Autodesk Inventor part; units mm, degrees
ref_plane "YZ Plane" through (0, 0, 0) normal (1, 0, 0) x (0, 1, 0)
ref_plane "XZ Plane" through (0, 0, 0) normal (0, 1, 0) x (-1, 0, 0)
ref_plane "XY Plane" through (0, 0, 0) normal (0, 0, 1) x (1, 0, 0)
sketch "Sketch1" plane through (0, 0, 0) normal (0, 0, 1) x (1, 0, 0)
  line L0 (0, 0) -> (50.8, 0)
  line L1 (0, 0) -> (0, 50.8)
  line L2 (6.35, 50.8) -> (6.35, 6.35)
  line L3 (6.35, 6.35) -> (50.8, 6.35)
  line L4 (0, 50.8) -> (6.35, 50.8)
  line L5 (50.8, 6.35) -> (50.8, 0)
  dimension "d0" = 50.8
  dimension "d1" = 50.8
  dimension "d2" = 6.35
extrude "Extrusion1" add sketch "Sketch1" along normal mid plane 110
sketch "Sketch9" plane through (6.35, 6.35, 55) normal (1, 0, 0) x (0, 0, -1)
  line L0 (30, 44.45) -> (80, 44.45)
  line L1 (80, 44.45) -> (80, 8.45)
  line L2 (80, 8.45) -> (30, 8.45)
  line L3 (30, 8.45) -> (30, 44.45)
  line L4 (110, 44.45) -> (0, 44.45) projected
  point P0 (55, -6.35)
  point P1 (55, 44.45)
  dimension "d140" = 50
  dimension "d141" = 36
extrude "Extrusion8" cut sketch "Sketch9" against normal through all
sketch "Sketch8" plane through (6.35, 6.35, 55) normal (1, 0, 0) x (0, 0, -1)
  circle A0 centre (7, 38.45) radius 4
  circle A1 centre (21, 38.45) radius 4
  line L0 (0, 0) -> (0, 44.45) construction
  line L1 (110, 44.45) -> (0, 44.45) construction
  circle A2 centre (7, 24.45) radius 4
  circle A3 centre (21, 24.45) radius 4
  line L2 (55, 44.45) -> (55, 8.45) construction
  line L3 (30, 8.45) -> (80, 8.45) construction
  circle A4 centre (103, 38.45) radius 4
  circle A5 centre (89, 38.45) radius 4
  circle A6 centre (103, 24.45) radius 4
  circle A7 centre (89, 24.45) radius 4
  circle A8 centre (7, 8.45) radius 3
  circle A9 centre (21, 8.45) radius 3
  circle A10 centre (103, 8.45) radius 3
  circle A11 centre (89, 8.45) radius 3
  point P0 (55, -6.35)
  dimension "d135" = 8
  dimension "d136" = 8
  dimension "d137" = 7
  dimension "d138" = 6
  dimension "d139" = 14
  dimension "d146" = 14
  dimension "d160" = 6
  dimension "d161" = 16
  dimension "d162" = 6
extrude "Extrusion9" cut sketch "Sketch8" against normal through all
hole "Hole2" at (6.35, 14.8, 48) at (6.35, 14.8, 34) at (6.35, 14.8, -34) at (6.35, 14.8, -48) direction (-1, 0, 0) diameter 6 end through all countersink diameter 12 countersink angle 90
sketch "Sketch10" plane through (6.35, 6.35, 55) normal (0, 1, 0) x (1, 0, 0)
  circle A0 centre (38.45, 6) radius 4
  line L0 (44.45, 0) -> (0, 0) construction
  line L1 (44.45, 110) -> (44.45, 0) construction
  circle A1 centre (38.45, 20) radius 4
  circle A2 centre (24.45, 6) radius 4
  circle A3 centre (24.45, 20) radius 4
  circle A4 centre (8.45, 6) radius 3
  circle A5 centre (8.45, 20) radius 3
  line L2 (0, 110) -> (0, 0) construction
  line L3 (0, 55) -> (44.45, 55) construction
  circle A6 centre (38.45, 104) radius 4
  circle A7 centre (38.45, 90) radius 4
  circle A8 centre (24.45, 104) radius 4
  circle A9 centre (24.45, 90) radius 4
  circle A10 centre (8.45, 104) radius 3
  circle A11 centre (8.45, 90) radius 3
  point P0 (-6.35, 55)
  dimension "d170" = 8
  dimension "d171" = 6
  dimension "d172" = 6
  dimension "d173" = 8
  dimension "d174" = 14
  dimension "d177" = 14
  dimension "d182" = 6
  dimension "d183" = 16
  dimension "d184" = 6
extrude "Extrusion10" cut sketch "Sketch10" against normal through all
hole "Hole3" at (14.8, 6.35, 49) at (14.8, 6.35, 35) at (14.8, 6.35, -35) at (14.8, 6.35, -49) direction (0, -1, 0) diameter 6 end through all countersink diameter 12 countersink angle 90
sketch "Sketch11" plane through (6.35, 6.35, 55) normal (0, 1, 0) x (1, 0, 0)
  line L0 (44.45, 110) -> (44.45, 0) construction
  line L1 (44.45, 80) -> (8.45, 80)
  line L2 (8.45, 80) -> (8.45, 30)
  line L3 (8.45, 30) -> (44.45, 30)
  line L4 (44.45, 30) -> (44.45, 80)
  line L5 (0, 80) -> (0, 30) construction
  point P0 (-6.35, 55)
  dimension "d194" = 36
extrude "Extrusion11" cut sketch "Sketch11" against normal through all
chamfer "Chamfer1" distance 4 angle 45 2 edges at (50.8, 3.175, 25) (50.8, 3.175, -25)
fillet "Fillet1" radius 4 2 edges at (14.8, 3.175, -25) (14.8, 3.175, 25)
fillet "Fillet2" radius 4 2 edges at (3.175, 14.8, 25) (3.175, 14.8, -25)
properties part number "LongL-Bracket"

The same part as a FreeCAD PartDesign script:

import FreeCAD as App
import Part
import Sketcher


def edges_at(feature, points):
    """Names of the edges that pass closest to the given points."""
    edges = feature.Shape.Edges
    near = lambda p: min(range(len(edges)), key=lambda i: edges[i].distToShape(Part.Vertex(*p))[0])
    return sorted({f"Edge{near(p) + 1}" for p in points})


def add_polygon(sketch, points):
    """Adds a closed chain of lines whose ends are joined by coincident constraints."""
    first, n = sketch.GeometryCount, len(points)
    for a, b in zip(points, points[1:] + points[:1]):
        sketch.addGeometry(Part.LineSegment(App.Vector(*a, 0), App.Vector(*b, 0)), False)
    for i in range(n):
        sketch.addConstraint(Sketcher.Constraint("Coincident", first + i, 2, first + (i + 1) % n, 1))

doc = App.newDocument("Part")
body = doc.addObject("PartDesign::Body", "Body")

# Sketch on XY plane
sketch1 = body.newObject("Sketcher::SketchObject", "Sketch")
sketch1.AttachmentSupport = (doc.getObject("XY_Plane"), [""])
sketch1.MapMode = "FlatFace"
add_polygon(sketch1, [(0, 50.8), (0, 0), (50.8, 0), (50.8, 6.35), (6.35, 6.35), (6.35, 50.8)])  # lines 0-5
sketch1.addConstraint(Sketcher.Constraint("Vertical", 0))
sketch1.addConstraint(Sketcher.Constraint("Horizontal", 1))
sketch1.addConstraint(Sketcher.Constraint("Vertical", 2))
sketch1.addConstraint(Sketcher.Constraint("Horizontal", 3))
sketch1.addConstraint(Sketcher.Constraint("Vertical", 4))
sketch1.addConstraint(Sketcher.Constraint("Horizontal", 5))
sketch1.addConstraint(Sketcher.Constraint("Coincident", 0, 2, -1, 1))
sketch1.addConstraint(Sketcher.Constraint("Equal", 1, 0))
sketch1.addConstraint(Sketcher.Constraint("Equal", 5, 2))
sketch1.addConstraint(Sketcher.Constraint("DistanceX", 1, 1, 1, 2, 50.8))
sketch1.addConstraint(Sketcher.Constraint("DistanceX", 5, 2, 5, 1, 6.35))
pad1 = body.newObject("PartDesign::Pad", "Pad")
pad1.Profile = sketch1
pad1.Length = 110
pad1.Midplane = True

# Sketch on YZ plane
sketch2 = body.newObject("Sketcher::SketchObject", "Sketch001")
sketch2.AttachmentSupport = (doc.getObject("YZ_Plane"), [""])
sketch2.MapMode = "FlatFace"
sketch2.AttachmentOffset = App.Placement(App.Vector(0, 0, 6.35), App.Rotation())
add_polygon(sketch2, [(50.8, -25), (50.8, 25), (14.8, 25), (14.8, -25)])  # lines 0-3
sketch2.addConstraint(Sketcher.Constraint("Vertical", 0))
sketch2.addConstraint(Sketcher.Constraint("Horizontal", 1))
sketch2.addConstraint(Sketcher.Constraint("Vertical", 2))
sketch2.addConstraint(Sketcher.Constraint("Horizontal", 3))
sketch2.addConstraint(Sketcher.Constraint("DistanceX", 1, 2, 1, 1, 36.0))
sketch2.addConstraint(Sketcher.Constraint("DistanceY", 0, 1, 0, 2, 50.0))
sketch2.addConstraint(Sketcher.Constraint("DistanceY", -1, 1, 0, 2, 25.0))
sketch2.addConstraint(Sketcher.Constraint("DistanceX", -1, 1, 0, 2, 50.8))
pocket1 = body.newObject("PartDesign::Pocket", "Pocket")
pocket1.Profile = sketch2
pocket1.Type = "ThroughAll"

# Sketch on YZ plane
sketch3 = body.newObject("Sketcher::SketchObject", "Sketch002")
sketch3.AttachmentSupport = (doc.getObject("YZ_Plane"), [""])
sketch3.MapMode = "FlatFace"
sketch3.AttachmentOffset = App.Placement(App.Vector(0, 0, 6.35), App.Rotation())
sketch3.addGeometry(Part.Circle(App.Vector(44.8, 48, 0), App.Vector(0, 0, 1), 4), False)
sketch3.addGeometry(Part.Circle(App.Vector(44.8, 34, 0), App.Vector(0, 0, 1), 4), False)
sketch3.addGeometry(Part.Circle(App.Vector(30.8, 48, 0), App.Vector(0, 0, 1), 4), False)
sketch3.addGeometry(Part.Circle(App.Vector(30.8, 34, 0), App.Vector(0, 0, 1), 4), False)
sketch3.addGeometry(Part.Circle(App.Vector(44.8, -48, 0), App.Vector(0, 0, 1), 4), False)
sketch3.addGeometry(Part.Circle(App.Vector(44.8, -34, 0), App.Vector(0, 0, 1), 4), False)
sketch3.addGeometry(Part.Circle(App.Vector(30.8, -48, 0), App.Vector(0, 0, 1), 4), False)
sketch3.addGeometry(Part.Circle(App.Vector(30.8, -34, 0), App.Vector(0, 0, 1), 4), False)
sketch3.addGeometry(Part.Circle(App.Vector(14.8, 48, 0), App.Vector(0, 0, 1), 3), False)
sketch3.addGeometry(Part.Circle(App.Vector(14.8, 34, 0), App.Vector(0, 0, 1), 3), False)
sketch3.addGeometry(Part.Circle(App.Vector(14.8, -48, 0), App.Vector(0, 0, 1), 3), False)
sketch3.addGeometry(Part.Circle(App.Vector(14.8, -34, 0), App.Vector(0, 0, 1), 3), False)
sketch3.addConstraint(Sketcher.Constraint("Equal", 0, 1))
sketch3.addConstraint(Sketcher.Constraint("Equal", 1, 2))
sketch3.addConstraint(Sketcher.Constraint("Equal", 2, 3))
sketch3.addConstraint(Sketcher.Constraint("Equal", 3, 4))
sketch3.addConstraint(Sketcher.Constraint("Equal", 4, 5))
sketch3.addConstraint(Sketcher.Constraint("Equal", 5, 6))
sketch3.addConstraint(Sketcher.Constraint("Equal", 6, 7))
sketch3.addConstraint(Sketcher.Constraint("Equal", 8, 9))
sketch3.addConstraint(Sketcher.Constraint("Equal", 9, 10))
sketch3.addConstraint(Sketcher.Constraint("Equal", 10, 11))
sketch3.addConstraint(Sketcher.Constraint("Symmetric", 0, 3, 4, 3, -1))
sketch3.addConstraint(Sketcher.Constraint("Symmetric", 1, 3, 5, 3, -1))
sketch3.addConstraint(Sketcher.Constraint("Symmetric", 2, 3, 6, 3, -1))
sketch3.addConstraint(Sketcher.Constraint("Symmetric", 3, 3, 7, 3, -1))
sketch3.addConstraint(Sketcher.Constraint("Symmetric", 8, 3, 10, 3, -1))
sketch3.addConstraint(Sketcher.Constraint("Symmetric", 9, 3, 11, 3, -1))
sketch3.addConstraint(Sketcher.Constraint("Horizontal", 0, 3, 2, 3))
sketch3.addConstraint(Sketcher.Constraint("Horizontal", 1, 3, 3, 3))
sketch3.addConstraint(Sketcher.Constraint("Horizontal", 2, 3, 8, 3))
sketch3.addConstraint(Sketcher.Constraint("Horizontal", 3, 3, 9, 3))
sketch3.addConstraint(Sketcher.Constraint("Vertical", 0, 3, 1, 3))
sketch3.addConstraint(Sketcher.Constraint("Vertical", 2, 3, 3, 3))
sketch3.addConstraint(Sketcher.Constraint("Vertical", 8, 3, 9, 3))
sketch3.addConstraint(Sketcher.Constraint("Diameter", 0, 8.0))
sketch3.addConstraint(Sketcher.Constraint("Diameter", 8, 6.0))
sketch3.addConstraint(Sketcher.Constraint("DistanceY", 1, 3, 0, 3, 14.0))
sketch3.addConstraint(Sketcher.Constraint("DistanceX", 2, 3, 0, 3, 14.0))
sketch3.addConstraint(Sketcher.Constraint("DistanceX", 8, 3, 2, 3, 16.0))
sketch3.addConstraint(Sketcher.Constraint("DistanceY", -1, 1, 0, 3, 48.0))
sketch3.addConstraint(Sketcher.Constraint("DistanceX", -1, 1, 0, 3, 44.8))
pocket2 = body.newObject("PartDesign::Pocket", "Pocket001")
pocket2.Profile = sketch3
pocket2.Type = "ThroughAll"

# Sketch on YZ plane
sketch4 = body.newObject("Sketcher::SketchObject", "Sketch003")
sketch4.AttachmentSupport = (doc.getObject("YZ_Plane"), [""])
sketch4.MapMode = "FlatFace"
sketch4.AttachmentOffset = App.Placement(App.Vector(0, 0, 6.35), App.Rotation())
sketch4.addGeometry(Part.Circle(App.Vector(14.8, 48, 0), App.Vector(0, 0, 1), 3), False)
sketch4.addGeometry(Part.Circle(App.Vector(14.8, 34, 0), App.Vector(0, 0, 1), 3), False)
sketch4.addGeometry(Part.Circle(App.Vector(14.8, -34, 0), App.Vector(0, 0, 1), 3), False)
sketch4.addGeometry(Part.Circle(App.Vector(14.8, -48, 0), App.Vector(0, 0, 1), 3), False)
sketch4.addConstraint(Sketcher.Constraint("Equal", 0, 1))
sketch4.addConstraint(Sketcher.Constraint("Equal", 1, 2))
sketch4.addConstraint(Sketcher.Constraint("Equal", 2, 3))
sketch4.addConstraint(Sketcher.Constraint("Symmetric", 1, 3, 2, 3, -1))
sketch4.addConstraint(Sketcher.Constraint("Symmetric", 0, 3, 3, 3, -1))
sketch4.addConstraint(Sketcher.Constraint("Vertical", 0, 3, 1, 3))
sketch4.addConstraint(Sketcher.Constraint("Diameter", 0, 6.0))
sketch4.addConstraint(Sketcher.Constraint("DistanceY", -1, 1, 0, 3, 48.0))
sketch4.addConstraint(Sketcher.Constraint("DistanceY", -1, 1, 1, 3, 34.0))
sketch4.addConstraint(Sketcher.Constraint("DistanceX", -1, 1, 0, 3, 14.8))
doc.recompute()
hole = body.newObject("PartDesign::Hole", "Hole")
hole.Profile = sketch4
hole.ThreadType = "None"
hole.Diameter = 6
hole.DepthType = "ThroughAll"
hole.HoleCutType = "Countersink"
hole.HoleCutDiameter = 12
hole.HoleCutCountersinkAngle = 90

# Sketch on XZ plane
sketch5 = body.newObject("Sketcher::SketchObject", "Sketch004")
sketch5.AttachmentSupport = (doc.getObject("XZ_Plane"), [""])
sketch5.MapMode = "FlatFace"
sketch5.AttachmentOffset = App.Placement(App.Vector(0, 0, -6.35), App.Rotation())
sketch5.addGeometry(Part.Circle(App.Vector(44.8, 49, 0), App.Vector(0, 0, 1), 4), False)
sketch5.addGeometry(Part.Circle(App.Vector(44.8, 35, 0), App.Vector(0, 0, 1), 4), False)
sketch5.addGeometry(Part.Circle(App.Vector(30.8, 49, 0), App.Vector(0, 0, 1), 4), False)
sketch5.addGeometry(Part.Circle(App.Vector(30.8, 35, 0), App.Vector(0, 0, 1), 4), False)
sketch5.addGeometry(Part.Circle(App.Vector(14.8, 49, 0), App.Vector(0, 0, 1), 3), False)
sketch5.addGeometry(Part.Circle(App.Vector(14.8, 35, 0), App.Vector(0, 0, 1), 3), False)
sketch5.addGeometry(Part.Circle(App.Vector(44.8, -49, 0), App.Vector(0, 0, 1), 4), False)
sketch5.addGeometry(Part.Circle(App.Vector(44.8, -35, 0), App.Vector(0, 0, 1), 4), False)
sketch5.addGeometry(Part.Circle(App.Vector(30.8, -49, 0), App.Vector(0, 0, 1), 4), False)
sketch5.addGeometry(Part.Circle(App.Vector(30.8, -35, 0), App.Vector(0, 0, 1), 4), False)
sketch5.addGeometry(Part.Circle(App.Vector(14.8, -49, 0), App.Vector(0, 0, 1), 3), False)
sketch5.addGeometry(Part.Circle(App.Vector(14.8, -35, 0), App.Vector(0, 0, 1), 3), False)
sketch5.addConstraint(Sketcher.Constraint("Equal", 0, 1))
sketch5.addConstraint(Sketcher.Constraint("Equal", 1, 2))
sketch5.addConstraint(Sketcher.Constraint("Equal", 2, 3))
sketch5.addConstraint(Sketcher.Constraint("Equal", 4, 5))
sketch5.addConstraint(Sketcher.Constraint("Equal", 3, 6))
sketch5.addConstraint(Sketcher.Constraint("Equal", 6, 7))
sketch5.addConstraint(Sketcher.Constraint("Equal", 7, 8))
sketch5.addConstraint(Sketcher.Constraint("Equal", 8, 9))
sketch5.addConstraint(Sketcher.Constraint("Equal", 5, 10))
sketch5.addConstraint(Sketcher.Constraint("Equal", 10, 11))
sketch5.addConstraint(Sketcher.Constraint("Symmetric", 0, 3, 6, 3, -1))
sketch5.addConstraint(Sketcher.Constraint("Symmetric", 1, 3, 7, 3, -1))
sketch5.addConstraint(Sketcher.Constraint("Symmetric", 2, 3, 8, 3, -1))
sketch5.addConstraint(Sketcher.Constraint("Symmetric", 3, 3, 9, 3, -1))
sketch5.addConstraint(Sketcher.Constraint("Symmetric", 4, 3, 10, 3, -1))
sketch5.addConstraint(Sketcher.Constraint("Symmetric", 5, 3, 11, 3, -1))
sketch5.addConstraint(Sketcher.Constraint("Horizontal", 0, 3, 2, 3))
sketch5.addConstraint(Sketcher.Constraint("Horizontal", 1, 3, 3, 3))
sketch5.addConstraint(Sketcher.Constraint("Horizontal", 2, 3, 4, 3))
sketch5.addConstraint(Sketcher.Constraint("Horizontal", 3, 3, 5, 3))
sketch5.addConstraint(Sketcher.Constraint("Vertical", 0, 3, 1, 3))
sketch5.addConstraint(Sketcher.Constraint("Vertical", 2, 3, 3, 3))
sketch5.addConstraint(Sketcher.Constraint("Vertical", 4, 3, 5, 3))
sketch5.addConstraint(Sketcher.Constraint("Diameter", 0, 8.0))
sketch5.addConstraint(Sketcher.Constraint("Diameter", 4, 6.0))
sketch5.addConstraint(Sketcher.Constraint("DistanceY", 1, 3, 0, 3, 14.0))
sketch5.addConstraint(Sketcher.Constraint("DistanceX", 2, 3, 0, 3, 14.0))
sketch5.addConstraint(Sketcher.Constraint("DistanceX", 4, 3, 2, 3, 16.0))
sketch5.addConstraint(Sketcher.Constraint("DistanceY", -1, 1, 0, 3, 49.0))
sketch5.addConstraint(Sketcher.Constraint("DistanceX", -1, 1, 0, 3, 44.8))
pocket3 = body.newObject("PartDesign::Pocket", "Pocket002")
pocket3.Profile = sketch5
pocket3.Type = "ThroughAll"
pocket3.Reversed = True

# Sketch on XZ plane
sketch6 = body.newObject("Sketcher::SketchObject", "Sketch005")
sketch6.AttachmentSupport = (doc.getObject("XZ_Plane"), [""])
sketch6.MapMode = "FlatFace"
sketch6.AttachmentOffset = App.Placement(App.Vector(0, 0, -6.35), App.Rotation())
sketch6.addGeometry(Part.Circle(App.Vector(14.8, 49, 0), App.Vector(0, 0, 1), 3), False)
sketch6.addGeometry(Part.Circle(App.Vector(14.8, 35, 0), App.Vector(0, 0, 1), 3), False)
sketch6.addGeometry(Part.Circle(App.Vector(14.8, -35, 0), App.Vector(0, 0, 1), 3), False)
sketch6.addGeometry(Part.Circle(App.Vector(14.8, -49, 0), App.Vector(0, 0, 1), 3), False)
sketch6.addConstraint(Sketcher.Constraint("Equal", 0, 1))
sketch6.addConstraint(Sketcher.Constraint("Equal", 1, 2))
sketch6.addConstraint(Sketcher.Constraint("Equal", 2, 3))
sketch6.addConstraint(Sketcher.Constraint("Symmetric", 1, 3, 2, 3, -1))
sketch6.addConstraint(Sketcher.Constraint("Symmetric", 0, 3, 3, 3, -1))
sketch6.addConstraint(Sketcher.Constraint("Vertical", 0, 3, 1, 3))
sketch6.addConstraint(Sketcher.Constraint("Diameter", 0, 6.0))
sketch6.addConstraint(Sketcher.Constraint("DistanceY", -1, 1, 0, 3, 49.0))
sketch6.addConstraint(Sketcher.Constraint("DistanceY", -1, 1, 1, 3, 35.0))
sketch6.addConstraint(Sketcher.Constraint("DistanceX", -1, 1, 0, 3, 14.8))
doc.recompute()
hole2 = body.newObject("PartDesign::Hole", "Hole001")
hole2.Profile = sketch6
hole2.ThreadType = "None"
hole2.Diameter = 6
hole2.DepthType = "ThroughAll"
hole2.HoleCutType = "Countersink"
hole2.HoleCutDiameter = 12
hole2.HoleCutCountersinkAngle = 90
hole2.Reversed = True

# Sketch on XZ plane
sketch7 = body.newObject("Sketcher::SketchObject", "Sketch006")
sketch7.AttachmentSupport = (doc.getObject("XZ_Plane"), [""])
sketch7.MapMode = "FlatFace"
sketch7.AttachmentOffset = App.Placement(App.Vector(0, 0, -6.35), App.Rotation())
add_polygon(sketch7, [(50.8, 25), (50.8, -25), (14.8, -25), (14.8, 25)])  # lines 0-3
sketch7.addConstraint(Sketcher.Constraint("Vertical", 0))
sketch7.addConstraint(Sketcher.Constraint("Horizontal", 1))
sketch7.addConstraint(Sketcher.Constraint("Vertical", 2))
sketch7.addConstraint(Sketcher.Constraint("Horizontal", 3))
sketch7.addConstraint(Sketcher.Constraint("DistanceX", 1, 2, 1, 1, 36.0))
sketch7.addConstraint(Sketcher.Constraint("DistanceY", 0, 2, 0, 1, 50.0))
sketch7.addConstraint(Sketcher.Constraint("DistanceY", 0, 2, -1, 1, 25.0))
sketch7.addConstraint(Sketcher.Constraint("DistanceX", -1, 1, 0, 2, 50.8))
pocket4 = body.newObject("PartDesign::Pocket", "Pocket003")
pocket4.Profile = sketch7
pocket4.Type = "ThroughAll"
pocket4.Reversed = True
doc.recompute()

chamfer = body.newObject("PartDesign::Chamfer", "Chamfer")
chamfer.Base = (pocket4, edges_at(pocket4, [(50.8, 3.175, 25), (50.8, 3.175, -25)]))
chamfer.Size = 4
doc.recompute()

fillet = body.newObject("PartDesign::Fillet", "Fillet")
fillet.Base = (chamfer, edges_at(chamfer, [(14.8, 3.175, -25), (14.8, 3.175, 25)]))
fillet.Radius = 4
doc.recompute()

fillet2 = body.newObject("PartDesign::Fillet", "Fillet001")
fillet2.Base = (fillet, edges_at(fillet, [(3.175, 14.8, 25), (3.175, 14.8, -25)]))
fillet2.Radius = 4

doc.recompute()
